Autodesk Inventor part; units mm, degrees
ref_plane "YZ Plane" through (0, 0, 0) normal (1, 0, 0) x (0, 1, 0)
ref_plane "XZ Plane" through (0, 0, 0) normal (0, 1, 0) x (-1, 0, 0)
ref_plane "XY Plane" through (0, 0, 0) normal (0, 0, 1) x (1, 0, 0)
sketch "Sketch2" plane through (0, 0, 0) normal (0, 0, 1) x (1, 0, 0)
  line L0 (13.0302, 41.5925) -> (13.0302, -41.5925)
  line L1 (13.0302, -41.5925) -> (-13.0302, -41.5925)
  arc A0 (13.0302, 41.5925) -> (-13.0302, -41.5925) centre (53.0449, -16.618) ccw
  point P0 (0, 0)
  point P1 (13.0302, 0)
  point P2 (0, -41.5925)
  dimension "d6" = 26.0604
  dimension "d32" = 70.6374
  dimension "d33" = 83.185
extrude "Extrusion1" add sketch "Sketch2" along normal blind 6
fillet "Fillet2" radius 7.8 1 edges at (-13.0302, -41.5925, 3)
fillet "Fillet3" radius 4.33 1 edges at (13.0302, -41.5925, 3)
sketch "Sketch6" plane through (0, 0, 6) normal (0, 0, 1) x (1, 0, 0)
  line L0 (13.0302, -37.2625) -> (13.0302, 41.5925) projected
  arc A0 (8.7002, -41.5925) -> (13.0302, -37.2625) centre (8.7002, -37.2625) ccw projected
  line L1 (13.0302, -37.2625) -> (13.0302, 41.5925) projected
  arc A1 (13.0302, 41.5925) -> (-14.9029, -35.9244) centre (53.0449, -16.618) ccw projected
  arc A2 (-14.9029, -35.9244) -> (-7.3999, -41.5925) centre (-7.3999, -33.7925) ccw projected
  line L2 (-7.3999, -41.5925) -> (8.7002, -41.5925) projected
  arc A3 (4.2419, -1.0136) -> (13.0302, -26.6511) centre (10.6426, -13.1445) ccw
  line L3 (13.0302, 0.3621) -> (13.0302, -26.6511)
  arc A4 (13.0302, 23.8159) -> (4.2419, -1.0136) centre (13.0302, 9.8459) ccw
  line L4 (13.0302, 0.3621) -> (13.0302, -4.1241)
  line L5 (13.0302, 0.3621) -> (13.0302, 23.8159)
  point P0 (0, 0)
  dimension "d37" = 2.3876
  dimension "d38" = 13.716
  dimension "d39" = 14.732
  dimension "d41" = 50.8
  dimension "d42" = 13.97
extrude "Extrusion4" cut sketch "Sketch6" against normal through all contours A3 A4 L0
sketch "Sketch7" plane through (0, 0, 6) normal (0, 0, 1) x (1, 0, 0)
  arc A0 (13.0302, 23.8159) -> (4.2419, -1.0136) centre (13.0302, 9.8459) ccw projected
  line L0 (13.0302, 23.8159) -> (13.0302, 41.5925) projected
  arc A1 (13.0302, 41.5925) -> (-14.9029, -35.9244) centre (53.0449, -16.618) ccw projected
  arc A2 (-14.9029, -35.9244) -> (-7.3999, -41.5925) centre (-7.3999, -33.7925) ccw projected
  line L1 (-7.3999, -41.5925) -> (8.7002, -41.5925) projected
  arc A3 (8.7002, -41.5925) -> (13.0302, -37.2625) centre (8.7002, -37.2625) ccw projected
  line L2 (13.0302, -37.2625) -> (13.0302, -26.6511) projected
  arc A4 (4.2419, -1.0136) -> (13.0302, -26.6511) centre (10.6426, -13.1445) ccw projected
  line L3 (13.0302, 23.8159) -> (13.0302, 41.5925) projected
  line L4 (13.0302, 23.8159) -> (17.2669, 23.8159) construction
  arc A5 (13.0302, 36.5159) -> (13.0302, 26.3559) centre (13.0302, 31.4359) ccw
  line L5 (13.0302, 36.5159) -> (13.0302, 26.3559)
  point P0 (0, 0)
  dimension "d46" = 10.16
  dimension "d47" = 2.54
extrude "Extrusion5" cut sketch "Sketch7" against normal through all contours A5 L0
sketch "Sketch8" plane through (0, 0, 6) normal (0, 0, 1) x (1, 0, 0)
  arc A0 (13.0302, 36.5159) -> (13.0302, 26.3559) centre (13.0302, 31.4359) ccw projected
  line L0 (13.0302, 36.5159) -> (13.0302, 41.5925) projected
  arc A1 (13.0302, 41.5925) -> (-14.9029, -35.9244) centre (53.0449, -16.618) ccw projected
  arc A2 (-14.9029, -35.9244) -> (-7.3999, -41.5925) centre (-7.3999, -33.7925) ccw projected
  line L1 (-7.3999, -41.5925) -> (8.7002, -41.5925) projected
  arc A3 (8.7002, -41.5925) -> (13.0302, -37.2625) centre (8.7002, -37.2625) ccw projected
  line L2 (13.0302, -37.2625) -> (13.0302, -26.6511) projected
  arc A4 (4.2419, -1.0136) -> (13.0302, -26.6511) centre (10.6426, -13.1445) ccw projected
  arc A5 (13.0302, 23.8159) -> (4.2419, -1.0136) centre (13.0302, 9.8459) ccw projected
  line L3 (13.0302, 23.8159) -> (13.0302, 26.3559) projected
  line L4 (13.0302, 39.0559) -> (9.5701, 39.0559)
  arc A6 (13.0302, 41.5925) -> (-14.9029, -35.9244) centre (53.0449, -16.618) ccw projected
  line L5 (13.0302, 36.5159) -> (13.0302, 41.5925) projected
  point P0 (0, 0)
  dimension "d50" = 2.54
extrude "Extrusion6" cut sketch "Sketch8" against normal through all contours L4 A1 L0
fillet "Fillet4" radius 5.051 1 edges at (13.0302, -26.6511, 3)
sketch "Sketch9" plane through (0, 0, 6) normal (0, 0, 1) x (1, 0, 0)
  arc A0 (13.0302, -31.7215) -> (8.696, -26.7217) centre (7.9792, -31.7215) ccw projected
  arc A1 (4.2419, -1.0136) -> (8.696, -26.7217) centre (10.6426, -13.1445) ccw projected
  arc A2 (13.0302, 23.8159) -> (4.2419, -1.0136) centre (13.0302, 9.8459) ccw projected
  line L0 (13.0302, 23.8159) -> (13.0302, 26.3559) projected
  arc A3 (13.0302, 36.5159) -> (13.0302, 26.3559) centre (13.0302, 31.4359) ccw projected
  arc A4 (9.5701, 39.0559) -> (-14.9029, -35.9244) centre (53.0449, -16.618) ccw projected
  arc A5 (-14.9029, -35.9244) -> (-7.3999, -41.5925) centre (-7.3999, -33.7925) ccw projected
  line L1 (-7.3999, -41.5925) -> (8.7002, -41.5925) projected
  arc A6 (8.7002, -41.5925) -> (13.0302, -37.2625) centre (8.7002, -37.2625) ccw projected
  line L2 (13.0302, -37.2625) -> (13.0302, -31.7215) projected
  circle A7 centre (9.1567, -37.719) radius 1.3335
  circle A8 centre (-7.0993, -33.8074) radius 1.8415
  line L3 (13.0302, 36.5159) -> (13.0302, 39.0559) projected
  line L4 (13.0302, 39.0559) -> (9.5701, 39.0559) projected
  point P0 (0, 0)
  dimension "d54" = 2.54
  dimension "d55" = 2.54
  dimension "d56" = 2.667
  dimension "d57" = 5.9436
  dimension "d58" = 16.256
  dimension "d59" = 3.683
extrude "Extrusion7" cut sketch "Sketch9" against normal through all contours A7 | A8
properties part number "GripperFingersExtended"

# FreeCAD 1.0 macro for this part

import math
import FreeCAD as App
import Part
import Sketcher
Q = App.Units.Quantity


def edges_at(feature, points):
    """Names of the edges that pass closest to the given points."""
    edges = feature.Shape.Edges
    near = lambda p: min(range(len(edges)), key=lambda i: edges[i].distToShape(Part.Vertex(*p))[0])
    return sorted({f"Edge{near(p) + 1}" for p in points})

doc = App.newDocument("Part")
body = doc.addObject("PartDesign::Body", "Body")

# Sketch on XY plane
sketch1 = body.newObject("Sketcher::SketchObject", "Sketch")
sketch1.AttachmentSupport = (doc.getObject("XY_Plane"), [""])
sketch1.MapMode = "FlatFace"
sketch1.addGeometry([
    Part.LineSegment(App.Vector(13, -42, 0), App.Vector(13, 42, 0)),
    Part.ArcOfCircle(Part.Circle(App.Vector(53, -17, 0), App.Vector(0, 0, 1), 71), math.radians(125), math.radians(201)),
    Part.LineSegment(App.Vector(-13, -42, 0), App.Vector(13, -42, 0)),
], False)
sketch1.addConstraint([
    Sketcher.Constraint("Coincident", 0, 2, 1, 1),
    Sketcher.Constraint("Coincident", 1, 2, 2, 1),
    Sketcher.Constraint("Coincident", 2, 2, 0, 1),
    Sketcher.Constraint("Vertical", 0),
    Sketcher.Constraint("Horizontal", 2),
    Sketcher.Constraint("Symmetric", 0, 2, 1, 2, -1, 1),
    Sketcher.Constraint("Radius", 1, Q("2.781 in")),
    Sketcher.Constraint("DistanceX", 2, 1, 2, 2, Q("1.026 in")),
    Sketcher.Constraint("DistanceY", 0, 1, 0, 2, Q("3.275 in")),
])
pad1 = body.newObject("PartDesign::Pad", "Pad")
pad1.Profile = sketch1
pad1.Length = 6
doc.recompute()

fillet = body.newObject("PartDesign::Fillet", "Fillet")
fillet.Base = (pad1, edges_at(pad1, [(-13.03, -41.593, 3)]))
fillet.Radius = 7.8
doc.recompute()

fillet2 = body.newObject("PartDesign::Fillet", "Fillet001")
fillet2.Base = (fillet, edges_at(fillet, [(13.03, -41.593, 3)]))
fillet2.Radius = 4.33

# Sketch on XY plane
sketch2 = body.newObject("Sketcher::SketchObject", "Sketch001")
sketch2.AttachmentSupport = (doc.getObject("XY_Plane"), [""])
sketch2.MapMode = "FlatFace"
sketch2.AttachmentOffset = App.Placement(App.Vector(0, 0, 6), App.Rotation())
sketch2.addGeometry([
    Part.ArcOfCircle(Part.Circle(App.Vector(11, -13, 0), App.Vector(0, 0, 1), 14), math.radians(118), math.radians(280)),
    Part.LineSegment(App.Vector(13, -27, 0), App.Vector(13, 24, 0)),
    Part.ArcOfCircle(Part.Circle(App.Vector(13, 10, 0), App.Vector(0, 0, 1), 14), math.radians(90), math.radians(231)),
], False)
sketch2.addConstraint([
    Sketcher.Constraint("Coincident", 0, 2, 1, 1),
    Sketcher.Constraint("Coincident", 1, 2, 2, 1),
    Sketcher.Constraint("Coincident", 2, 2, 0, 1),
    Sketcher.Constraint("Vertical", 1),
    Sketcher.Constraint("Vertical", 2, 3, 0, 2),
    Sketcher.Constraint("Radius", 0, Q("0.54 in")),
    Sketcher.Constraint("Radius", 2, Q("0.55 in")),
    Sketcher.Constraint("DistanceX", 0, 3, 2, 3, Q("0.094 in")),
    Sketcher.Constraint("DistanceY", 1, 1, 1, 2, Q("1.9869 in")),
    Sketcher.Constraint("DistanceX", -1, 1, 0, 3, Q("0.419 in")),
    Sketcher.Constraint("DistanceY", 0, 3, -1, 1, Q("0.5175 in")),
])
pocket1 = body.newObject("PartDesign::Pocket", "Pocket")
pocket1.Profile = sketch2
pocket1.Type = "ThroughAll"

# Sketch on XY plane
sketch3 = body.newObject("Sketcher::SketchObject", "Sketch002")
sketch3.AttachmentSupport = (doc.getObject("XY_Plane"), [""])
sketch3.MapMode = "FlatFace"
sketch3.AttachmentOffset = App.Placement(App.Vector(0, 0, 6), App.Rotation())
sketch3.addGeometry([
    Part.ArcOfCircle(Part.Circle(App.Vector(13, 31, 0), App.Vector(0, 0, 1), 5), math.radians(90), math.radians(270)),
    Part.LineSegment(App.Vector(13, 26, 0), App.Vector(13, 37, 0)),
], False)
sketch3.addConstraint([
    Sketcher.Constraint("Coincident", 0, 1, 1, 2),
    Sketcher.Constraint("Coincident", 1, 1, 0, 2),
    Sketcher.Constraint("Vertical", 1),
    Sketcher.Constraint("Radius", 0, Q("0.2 in")),
    Sketcher.Constraint("DistanceX", -1, 1, 0, 3, Q("0.513 in")),
    Sketcher.Constraint("DistanceX", -1, 1, 0, 1, Q("0.513 in")),
    Sketcher.Constraint("DistanceY", -1, 1, 0, 3, 31.436),
])
pocket2 = body.newObject("PartDesign::Pocket", "Pocket001")
pocket2.Profile = sketch3
pocket2.Type = "ThroughAll"

# Sketch on XY plane
sketch4 = body.newObject("Sketcher::SketchObject", "Sketch003")
sketch4.AttachmentSupport = (doc.getObject("XY_Plane"), [""])
sketch4.MapMode = "FlatFace"
sketch4.AttachmentOffset = App.Placement(App.Vector(0, 0, 6), App.Rotation())
sketch4.addGeometry([
    Part.LineSegment(App.Vector(9.6, 39.1, 0), App.Vector(13, 39.1, 0)),
    Part.LineSegment(App.Vector(13, 39.1, 0), App.Vector(13, 41.6, 0)),
    Part.ArcOfCircle(Part.Circle(App.Vector(53, -16.6, 0), App.Vector(0, 0, 1), 70.6), math.radians(124.51), math.radians(127.99)),
], False)
sketch4.addConstraint([
    Sketcher.Constraint("Coincident", 0, 2, 1, 1),
    Sketcher.Constraint("Coincident", 1, 2, 2, 1),
    Sketcher.Constraint("Coincident", 2, 2, 0, 1),
    Sketcher.Constraint("Horizontal", 0),
    Sketcher.Constraint("Vertical", 1),
    Sketcher.Constraint("Radius", 2, Q("2.781 in")),
    Sketcher.Constraint("DistanceX", -1, 1, 0, 2, Q("0.513 in")),
    Sketcher.Constraint("DistanceX", 0, 1, 0, 2, 3.46),
    Sketcher.Constraint("DistanceY", 1, 1, 1, 2, 2.5366),
    Sketcher.Constraint("DistanceY", -1, 1, 1, 2, Q("1.6375 in")),
])
pocket3 = body.newObject("PartDesign::Pocket", "Pocket002")
pocket3.Profile = sketch4
pocket3.Type = "ThroughAll"
doc.recompute()

fillet3 = body.newObject("PartDesign::Fillet", "Fillet002")
fillet3.Base = (pocket3, edges_at(pocket3, [(13.03, -26.651, 3)]))
fillet3.Radius = 5.051

# Sketch on XY plane
sketch5 = body.newObject("Sketcher::SketchObject", "Sketch004")
sketch5.AttachmentSupport = (doc.getObject("XY_Plane"), [""])
sketch5.MapMode = "FlatFace"
sketch5.AttachmentOffset = App.Placement(App.Vector(0, 0, 6), App.Rotation())
sketch5.addGeometry([
    Part.Circle(App.Vector(9.2, -37.7, 0), App.Vector(0, 0, 1), 1.3),
    Part.Circle(App.Vector(-7.1, -33.8, 0), App.Vector(0, 0, 1), 1.8),
], False)
sketch5.addConstraint([
    Sketcher.Constraint("Diameter", 0, Q("0.105 in")),
    Sketcher.Constraint("Diameter", 1, Q("0.145 in")),
    Sketcher.Constraint("DistanceX", 1, 3, 0, 3, Q("0.64 in")),
    Sketcher.Constraint("DistanceY", 0, 3, -1, 1, Q("1.485 in")),
    Sketcher.Constraint("DistanceY", 1, 3, -1, 1, Q("1.331 in")),
    Sketcher.Constraint("DistanceX", -1, 1, 0, 3, Q("0.3605 in")),
])
pocket4 = body.newObject("PartDesign::Pocket", "Pocket003")
pocket4.Profile = sketch5
pocket4.Type = "ThroughAll"

doc.recompute()
